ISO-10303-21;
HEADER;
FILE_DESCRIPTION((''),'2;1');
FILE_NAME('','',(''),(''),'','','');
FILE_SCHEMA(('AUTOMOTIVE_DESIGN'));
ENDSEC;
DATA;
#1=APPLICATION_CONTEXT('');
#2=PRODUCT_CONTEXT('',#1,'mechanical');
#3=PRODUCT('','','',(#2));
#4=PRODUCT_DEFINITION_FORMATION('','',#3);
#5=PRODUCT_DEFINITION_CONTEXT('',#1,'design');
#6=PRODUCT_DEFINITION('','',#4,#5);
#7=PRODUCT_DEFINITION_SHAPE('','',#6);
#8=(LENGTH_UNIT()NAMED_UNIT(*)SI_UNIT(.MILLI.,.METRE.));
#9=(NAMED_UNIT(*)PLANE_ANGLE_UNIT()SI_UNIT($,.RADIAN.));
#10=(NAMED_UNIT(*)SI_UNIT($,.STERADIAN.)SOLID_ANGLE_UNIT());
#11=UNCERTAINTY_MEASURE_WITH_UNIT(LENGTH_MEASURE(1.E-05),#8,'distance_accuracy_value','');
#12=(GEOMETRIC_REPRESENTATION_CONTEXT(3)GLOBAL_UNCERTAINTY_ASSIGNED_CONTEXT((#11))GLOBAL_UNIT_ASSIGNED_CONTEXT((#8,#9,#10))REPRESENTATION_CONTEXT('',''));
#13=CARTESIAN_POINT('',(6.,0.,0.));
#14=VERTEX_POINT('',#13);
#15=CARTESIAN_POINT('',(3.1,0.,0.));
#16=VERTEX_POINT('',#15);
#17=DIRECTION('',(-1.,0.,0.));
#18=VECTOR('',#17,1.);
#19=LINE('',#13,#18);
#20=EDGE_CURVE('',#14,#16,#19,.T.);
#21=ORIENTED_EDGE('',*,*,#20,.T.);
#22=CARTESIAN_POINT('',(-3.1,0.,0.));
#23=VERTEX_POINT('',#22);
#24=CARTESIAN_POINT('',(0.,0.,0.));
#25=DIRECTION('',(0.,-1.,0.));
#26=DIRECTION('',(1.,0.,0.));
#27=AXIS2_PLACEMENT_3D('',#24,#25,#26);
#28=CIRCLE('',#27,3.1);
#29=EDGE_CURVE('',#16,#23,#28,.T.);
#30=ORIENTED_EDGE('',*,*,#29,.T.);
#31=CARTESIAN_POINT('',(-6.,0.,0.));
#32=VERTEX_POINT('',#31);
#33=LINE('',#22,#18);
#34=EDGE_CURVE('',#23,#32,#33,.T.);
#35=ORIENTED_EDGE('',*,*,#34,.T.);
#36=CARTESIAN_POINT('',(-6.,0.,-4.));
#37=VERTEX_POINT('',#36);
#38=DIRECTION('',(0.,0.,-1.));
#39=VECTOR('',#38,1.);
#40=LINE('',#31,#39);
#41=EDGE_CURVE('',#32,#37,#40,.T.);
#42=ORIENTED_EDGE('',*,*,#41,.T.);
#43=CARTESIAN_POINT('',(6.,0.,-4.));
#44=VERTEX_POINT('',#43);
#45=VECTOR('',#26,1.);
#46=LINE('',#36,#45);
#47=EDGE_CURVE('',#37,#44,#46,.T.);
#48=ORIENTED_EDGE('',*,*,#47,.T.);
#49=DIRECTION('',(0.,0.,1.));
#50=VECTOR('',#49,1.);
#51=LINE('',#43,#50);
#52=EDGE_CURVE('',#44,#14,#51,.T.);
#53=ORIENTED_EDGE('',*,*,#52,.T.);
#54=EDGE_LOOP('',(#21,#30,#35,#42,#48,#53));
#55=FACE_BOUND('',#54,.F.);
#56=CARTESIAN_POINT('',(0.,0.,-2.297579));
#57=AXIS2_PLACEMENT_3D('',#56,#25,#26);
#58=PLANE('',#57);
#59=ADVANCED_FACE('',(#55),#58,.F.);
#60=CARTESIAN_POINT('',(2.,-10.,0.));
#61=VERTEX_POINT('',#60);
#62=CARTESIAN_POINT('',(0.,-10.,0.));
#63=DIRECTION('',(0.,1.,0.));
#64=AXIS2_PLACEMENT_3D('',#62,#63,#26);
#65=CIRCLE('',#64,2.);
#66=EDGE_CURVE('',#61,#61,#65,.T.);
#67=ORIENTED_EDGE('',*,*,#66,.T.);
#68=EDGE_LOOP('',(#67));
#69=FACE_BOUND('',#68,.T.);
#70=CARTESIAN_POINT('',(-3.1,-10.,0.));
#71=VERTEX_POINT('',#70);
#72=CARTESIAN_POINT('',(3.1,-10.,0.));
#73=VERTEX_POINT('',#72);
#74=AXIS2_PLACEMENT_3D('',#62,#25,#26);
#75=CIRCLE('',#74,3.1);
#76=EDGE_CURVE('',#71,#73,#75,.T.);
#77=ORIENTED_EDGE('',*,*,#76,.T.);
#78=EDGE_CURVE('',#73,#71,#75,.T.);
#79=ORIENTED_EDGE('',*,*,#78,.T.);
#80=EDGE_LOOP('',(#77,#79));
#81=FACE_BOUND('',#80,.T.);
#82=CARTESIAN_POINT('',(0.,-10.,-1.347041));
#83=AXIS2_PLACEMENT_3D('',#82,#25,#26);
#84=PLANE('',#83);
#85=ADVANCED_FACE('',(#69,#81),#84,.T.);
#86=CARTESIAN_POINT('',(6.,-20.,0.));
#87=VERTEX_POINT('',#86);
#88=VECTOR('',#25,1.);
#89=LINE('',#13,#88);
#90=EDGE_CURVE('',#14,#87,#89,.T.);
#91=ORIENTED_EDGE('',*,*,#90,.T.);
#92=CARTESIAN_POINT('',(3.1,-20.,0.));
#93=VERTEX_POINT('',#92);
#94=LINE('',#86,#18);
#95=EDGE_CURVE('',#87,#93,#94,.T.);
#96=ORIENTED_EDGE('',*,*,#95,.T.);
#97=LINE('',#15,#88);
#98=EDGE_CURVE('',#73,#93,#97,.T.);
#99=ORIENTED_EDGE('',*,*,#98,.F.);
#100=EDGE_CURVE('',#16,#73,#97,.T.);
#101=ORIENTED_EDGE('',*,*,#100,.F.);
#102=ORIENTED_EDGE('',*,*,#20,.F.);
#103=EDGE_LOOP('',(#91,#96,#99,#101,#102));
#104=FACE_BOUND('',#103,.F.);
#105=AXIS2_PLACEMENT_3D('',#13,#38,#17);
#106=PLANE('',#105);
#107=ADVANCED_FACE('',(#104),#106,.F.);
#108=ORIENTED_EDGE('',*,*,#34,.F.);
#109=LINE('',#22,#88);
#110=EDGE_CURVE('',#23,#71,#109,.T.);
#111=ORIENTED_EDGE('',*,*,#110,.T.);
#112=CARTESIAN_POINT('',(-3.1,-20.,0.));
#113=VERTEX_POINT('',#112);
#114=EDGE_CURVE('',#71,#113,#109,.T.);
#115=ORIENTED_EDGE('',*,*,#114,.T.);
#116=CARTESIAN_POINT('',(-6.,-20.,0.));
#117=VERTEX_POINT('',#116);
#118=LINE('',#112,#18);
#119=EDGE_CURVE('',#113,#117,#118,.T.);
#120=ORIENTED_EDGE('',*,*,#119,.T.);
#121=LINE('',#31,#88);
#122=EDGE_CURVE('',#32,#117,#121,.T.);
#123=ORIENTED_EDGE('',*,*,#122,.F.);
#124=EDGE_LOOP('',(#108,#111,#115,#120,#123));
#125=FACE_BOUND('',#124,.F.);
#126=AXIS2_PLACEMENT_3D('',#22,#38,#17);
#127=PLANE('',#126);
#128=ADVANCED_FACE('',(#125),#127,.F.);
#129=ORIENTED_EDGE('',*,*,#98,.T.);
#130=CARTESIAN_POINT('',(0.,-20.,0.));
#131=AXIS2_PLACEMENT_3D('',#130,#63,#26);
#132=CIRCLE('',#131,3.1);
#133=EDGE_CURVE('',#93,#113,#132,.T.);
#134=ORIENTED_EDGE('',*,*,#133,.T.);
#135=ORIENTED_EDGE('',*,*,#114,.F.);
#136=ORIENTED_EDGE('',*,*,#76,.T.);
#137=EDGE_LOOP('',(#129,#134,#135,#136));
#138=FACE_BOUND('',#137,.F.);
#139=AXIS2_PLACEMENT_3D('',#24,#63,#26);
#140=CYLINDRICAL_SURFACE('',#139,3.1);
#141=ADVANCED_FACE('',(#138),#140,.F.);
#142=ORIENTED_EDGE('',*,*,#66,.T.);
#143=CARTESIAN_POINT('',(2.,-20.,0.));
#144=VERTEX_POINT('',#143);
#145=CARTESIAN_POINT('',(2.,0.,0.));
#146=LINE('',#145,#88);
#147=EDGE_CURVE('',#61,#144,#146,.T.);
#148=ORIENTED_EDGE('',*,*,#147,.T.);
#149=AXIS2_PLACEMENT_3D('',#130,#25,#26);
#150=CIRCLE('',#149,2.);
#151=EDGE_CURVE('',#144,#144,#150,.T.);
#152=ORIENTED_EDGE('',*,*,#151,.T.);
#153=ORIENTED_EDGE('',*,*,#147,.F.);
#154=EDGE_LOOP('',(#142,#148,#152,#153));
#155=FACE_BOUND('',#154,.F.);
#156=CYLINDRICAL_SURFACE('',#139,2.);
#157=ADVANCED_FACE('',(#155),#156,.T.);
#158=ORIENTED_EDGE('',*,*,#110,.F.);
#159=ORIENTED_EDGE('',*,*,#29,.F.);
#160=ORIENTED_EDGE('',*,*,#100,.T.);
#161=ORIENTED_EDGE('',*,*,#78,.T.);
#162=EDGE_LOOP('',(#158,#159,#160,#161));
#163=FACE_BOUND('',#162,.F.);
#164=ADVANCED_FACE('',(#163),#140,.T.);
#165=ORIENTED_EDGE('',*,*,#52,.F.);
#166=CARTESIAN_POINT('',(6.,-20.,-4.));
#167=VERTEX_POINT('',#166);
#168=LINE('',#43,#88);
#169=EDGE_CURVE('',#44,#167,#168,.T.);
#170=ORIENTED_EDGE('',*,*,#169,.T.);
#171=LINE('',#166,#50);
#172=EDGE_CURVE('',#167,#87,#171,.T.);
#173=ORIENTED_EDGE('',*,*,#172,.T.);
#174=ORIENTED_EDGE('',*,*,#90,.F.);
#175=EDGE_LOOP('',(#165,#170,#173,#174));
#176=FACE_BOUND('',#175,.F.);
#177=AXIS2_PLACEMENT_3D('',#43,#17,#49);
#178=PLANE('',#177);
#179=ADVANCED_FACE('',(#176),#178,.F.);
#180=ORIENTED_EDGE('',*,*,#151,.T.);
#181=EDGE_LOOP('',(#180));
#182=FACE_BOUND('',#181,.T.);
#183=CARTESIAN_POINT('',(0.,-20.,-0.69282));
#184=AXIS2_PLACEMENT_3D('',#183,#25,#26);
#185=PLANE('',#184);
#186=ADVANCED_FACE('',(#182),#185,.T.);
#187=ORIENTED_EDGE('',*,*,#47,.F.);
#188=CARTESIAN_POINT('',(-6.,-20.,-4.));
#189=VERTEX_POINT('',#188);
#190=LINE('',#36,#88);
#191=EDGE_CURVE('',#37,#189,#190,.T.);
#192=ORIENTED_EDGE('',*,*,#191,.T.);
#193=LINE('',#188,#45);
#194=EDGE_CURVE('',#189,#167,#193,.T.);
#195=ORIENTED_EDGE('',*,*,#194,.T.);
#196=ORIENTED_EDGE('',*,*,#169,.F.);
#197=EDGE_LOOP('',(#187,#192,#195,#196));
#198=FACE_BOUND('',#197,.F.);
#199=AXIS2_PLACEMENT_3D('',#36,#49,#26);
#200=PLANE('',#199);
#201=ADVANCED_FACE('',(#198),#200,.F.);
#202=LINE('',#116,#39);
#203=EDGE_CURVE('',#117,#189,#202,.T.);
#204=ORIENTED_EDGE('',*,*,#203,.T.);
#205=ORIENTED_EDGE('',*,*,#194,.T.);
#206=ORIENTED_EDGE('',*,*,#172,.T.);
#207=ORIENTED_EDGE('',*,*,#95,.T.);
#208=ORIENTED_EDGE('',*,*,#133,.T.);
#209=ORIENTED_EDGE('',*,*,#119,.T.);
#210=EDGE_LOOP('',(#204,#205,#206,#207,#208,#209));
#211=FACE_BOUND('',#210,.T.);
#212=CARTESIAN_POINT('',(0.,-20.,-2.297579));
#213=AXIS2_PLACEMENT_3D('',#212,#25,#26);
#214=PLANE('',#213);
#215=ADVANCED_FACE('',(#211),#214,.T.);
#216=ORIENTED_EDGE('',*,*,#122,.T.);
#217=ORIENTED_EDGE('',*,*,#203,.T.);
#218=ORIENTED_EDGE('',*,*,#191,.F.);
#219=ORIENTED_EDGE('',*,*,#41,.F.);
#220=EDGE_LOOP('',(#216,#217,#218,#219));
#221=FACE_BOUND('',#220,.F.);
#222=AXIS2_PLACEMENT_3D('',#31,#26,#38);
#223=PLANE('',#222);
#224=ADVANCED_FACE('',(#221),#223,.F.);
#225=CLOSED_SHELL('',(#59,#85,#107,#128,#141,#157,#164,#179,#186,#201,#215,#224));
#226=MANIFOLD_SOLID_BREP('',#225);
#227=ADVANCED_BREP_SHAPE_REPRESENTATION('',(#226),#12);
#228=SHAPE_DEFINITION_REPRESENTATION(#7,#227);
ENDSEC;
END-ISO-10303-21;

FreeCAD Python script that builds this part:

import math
import FreeCAD as App
import Part
import Sketcher

V = App.Vector
Q = App.Units.Quantity

doc = App.newDocument("Part")
body = doc.addObject("PartDesign::Body", "Body")

# Sketch on XZ plane
sketch1 = doc.addObject("Sketcher::SketchObject", "Sketch")
body.addObject(sketch1)
sketch1.AttachmentSupport = (doc.XZ_Plane, [""])
sketch1.MapMode = "FlatFace"
sketch1.addGeometry([
    Part.Circle(V(0, 0, 0), V(0, 0, 1), 3.1),
    Part.Circle(V(0, 0, 0), V(0, 0, 1), 2),
], False)
sketch1.addConstraint([
    Sketcher.Constraint("Coincident", 0, 3, -1, 1),
    Sketcher.Constraint("Coincident", 1, 3, -1, 1),
    Sketcher.Constraint("Diameter", 1, Q("4 mm")),
    Sketcher.Constraint("Diameter", 0, Q("6.2 mm")),
])
pad1 = doc.addObject("PartDesign::Pad", "Pad")
body.addObject(pad1)
pad1.Profile = sketch1
pad1.Length = 10

# Sketch on XZ plane
sketch2 = doc.addObject("Sketcher::SketchObject", "Sketch001")
body.addObject(sketch2)
sketch2.AttachmentSupport = (doc.XZ_Plane, [""])
sketch2.MapMode = "FlatFace"
sketch2.addGeometry([
    Part.LineSegment(V(6, 0, 0), V(3.1, 0, 0)),  # 0
    Part.ArcOfCircle(Part.Circle(V(0, 0, 0), V(0, 0, 1), 3.1), math.radians(180), math.radians(360)),  # 1
    Part.LineSegment(V(-3.1, 0, 0), V(-6, 0, 0)),  # 2
    Part.LineSegment(V(-6, 0, 0), V(-6, -4, 0)),  # 3
    Part.LineSegment(V(-6, -4, 0), V(6, -4, 0)),  # 4
    Part.LineSegment(V(6, -4, 0), V(6, 0, 0)),  # 5
    Part.Circle(V(0, 0, 0), V(0, 0, 1), 2),  # 6
], False)
sketch2.addConstraint([
    Sketcher.Constraint("Coincident", 0, 2, 1, 2),
    Sketcher.Constraint("Coincident", 1, 1, 2, 1),
    Sketcher.Constraint("Coincident", 2, 2, 3, 1),
    Sketcher.Constraint("Coincident", 3, 2, 4, 1),
    Sketcher.Constraint("Coincident", 4, 2, 5, 1),
    Sketcher.Constraint("Coincident", 5, 2, 0, 1),
    Sketcher.Constraint("Horizontal", 0),
    Sketcher.Constraint("Horizontal", 2),
    Sketcher.Constraint("Vertical", 3),
    Sketcher.Constraint("Horizontal", 4),
    Sketcher.Constraint("Vertical", 5),
    Sketcher.Constraint("Coincident", 1, 3, -1, 1),
    Sketcher.Constraint("Coincident", 6, 3, -1, 1),
    Sketcher.Constraint("Symmetric", 2, 2, 5, 2, -1, 1),
    Sketcher.Constraint("PointOnObject", 0, 2, -1),
    Sketcher.Constraint("Diameter", 6, Q("4 mm")),
    Sketcher.Constraint("Radius", 1, Q("3.1 mm")),
    Sketcher.Constraint("DistanceX", 4, 1, 4, 2, Q("12 mm")),
    Sketcher.Constraint("DistanceY", 3, 2, 3, 1, Q("4 mm")),
])
pad2 = doc.addObject("PartDesign::Pad", "Pad001")
body.addObject(pad2)
pad2.Profile = sketch2
pad2.Length = 20

doc.recompute()
